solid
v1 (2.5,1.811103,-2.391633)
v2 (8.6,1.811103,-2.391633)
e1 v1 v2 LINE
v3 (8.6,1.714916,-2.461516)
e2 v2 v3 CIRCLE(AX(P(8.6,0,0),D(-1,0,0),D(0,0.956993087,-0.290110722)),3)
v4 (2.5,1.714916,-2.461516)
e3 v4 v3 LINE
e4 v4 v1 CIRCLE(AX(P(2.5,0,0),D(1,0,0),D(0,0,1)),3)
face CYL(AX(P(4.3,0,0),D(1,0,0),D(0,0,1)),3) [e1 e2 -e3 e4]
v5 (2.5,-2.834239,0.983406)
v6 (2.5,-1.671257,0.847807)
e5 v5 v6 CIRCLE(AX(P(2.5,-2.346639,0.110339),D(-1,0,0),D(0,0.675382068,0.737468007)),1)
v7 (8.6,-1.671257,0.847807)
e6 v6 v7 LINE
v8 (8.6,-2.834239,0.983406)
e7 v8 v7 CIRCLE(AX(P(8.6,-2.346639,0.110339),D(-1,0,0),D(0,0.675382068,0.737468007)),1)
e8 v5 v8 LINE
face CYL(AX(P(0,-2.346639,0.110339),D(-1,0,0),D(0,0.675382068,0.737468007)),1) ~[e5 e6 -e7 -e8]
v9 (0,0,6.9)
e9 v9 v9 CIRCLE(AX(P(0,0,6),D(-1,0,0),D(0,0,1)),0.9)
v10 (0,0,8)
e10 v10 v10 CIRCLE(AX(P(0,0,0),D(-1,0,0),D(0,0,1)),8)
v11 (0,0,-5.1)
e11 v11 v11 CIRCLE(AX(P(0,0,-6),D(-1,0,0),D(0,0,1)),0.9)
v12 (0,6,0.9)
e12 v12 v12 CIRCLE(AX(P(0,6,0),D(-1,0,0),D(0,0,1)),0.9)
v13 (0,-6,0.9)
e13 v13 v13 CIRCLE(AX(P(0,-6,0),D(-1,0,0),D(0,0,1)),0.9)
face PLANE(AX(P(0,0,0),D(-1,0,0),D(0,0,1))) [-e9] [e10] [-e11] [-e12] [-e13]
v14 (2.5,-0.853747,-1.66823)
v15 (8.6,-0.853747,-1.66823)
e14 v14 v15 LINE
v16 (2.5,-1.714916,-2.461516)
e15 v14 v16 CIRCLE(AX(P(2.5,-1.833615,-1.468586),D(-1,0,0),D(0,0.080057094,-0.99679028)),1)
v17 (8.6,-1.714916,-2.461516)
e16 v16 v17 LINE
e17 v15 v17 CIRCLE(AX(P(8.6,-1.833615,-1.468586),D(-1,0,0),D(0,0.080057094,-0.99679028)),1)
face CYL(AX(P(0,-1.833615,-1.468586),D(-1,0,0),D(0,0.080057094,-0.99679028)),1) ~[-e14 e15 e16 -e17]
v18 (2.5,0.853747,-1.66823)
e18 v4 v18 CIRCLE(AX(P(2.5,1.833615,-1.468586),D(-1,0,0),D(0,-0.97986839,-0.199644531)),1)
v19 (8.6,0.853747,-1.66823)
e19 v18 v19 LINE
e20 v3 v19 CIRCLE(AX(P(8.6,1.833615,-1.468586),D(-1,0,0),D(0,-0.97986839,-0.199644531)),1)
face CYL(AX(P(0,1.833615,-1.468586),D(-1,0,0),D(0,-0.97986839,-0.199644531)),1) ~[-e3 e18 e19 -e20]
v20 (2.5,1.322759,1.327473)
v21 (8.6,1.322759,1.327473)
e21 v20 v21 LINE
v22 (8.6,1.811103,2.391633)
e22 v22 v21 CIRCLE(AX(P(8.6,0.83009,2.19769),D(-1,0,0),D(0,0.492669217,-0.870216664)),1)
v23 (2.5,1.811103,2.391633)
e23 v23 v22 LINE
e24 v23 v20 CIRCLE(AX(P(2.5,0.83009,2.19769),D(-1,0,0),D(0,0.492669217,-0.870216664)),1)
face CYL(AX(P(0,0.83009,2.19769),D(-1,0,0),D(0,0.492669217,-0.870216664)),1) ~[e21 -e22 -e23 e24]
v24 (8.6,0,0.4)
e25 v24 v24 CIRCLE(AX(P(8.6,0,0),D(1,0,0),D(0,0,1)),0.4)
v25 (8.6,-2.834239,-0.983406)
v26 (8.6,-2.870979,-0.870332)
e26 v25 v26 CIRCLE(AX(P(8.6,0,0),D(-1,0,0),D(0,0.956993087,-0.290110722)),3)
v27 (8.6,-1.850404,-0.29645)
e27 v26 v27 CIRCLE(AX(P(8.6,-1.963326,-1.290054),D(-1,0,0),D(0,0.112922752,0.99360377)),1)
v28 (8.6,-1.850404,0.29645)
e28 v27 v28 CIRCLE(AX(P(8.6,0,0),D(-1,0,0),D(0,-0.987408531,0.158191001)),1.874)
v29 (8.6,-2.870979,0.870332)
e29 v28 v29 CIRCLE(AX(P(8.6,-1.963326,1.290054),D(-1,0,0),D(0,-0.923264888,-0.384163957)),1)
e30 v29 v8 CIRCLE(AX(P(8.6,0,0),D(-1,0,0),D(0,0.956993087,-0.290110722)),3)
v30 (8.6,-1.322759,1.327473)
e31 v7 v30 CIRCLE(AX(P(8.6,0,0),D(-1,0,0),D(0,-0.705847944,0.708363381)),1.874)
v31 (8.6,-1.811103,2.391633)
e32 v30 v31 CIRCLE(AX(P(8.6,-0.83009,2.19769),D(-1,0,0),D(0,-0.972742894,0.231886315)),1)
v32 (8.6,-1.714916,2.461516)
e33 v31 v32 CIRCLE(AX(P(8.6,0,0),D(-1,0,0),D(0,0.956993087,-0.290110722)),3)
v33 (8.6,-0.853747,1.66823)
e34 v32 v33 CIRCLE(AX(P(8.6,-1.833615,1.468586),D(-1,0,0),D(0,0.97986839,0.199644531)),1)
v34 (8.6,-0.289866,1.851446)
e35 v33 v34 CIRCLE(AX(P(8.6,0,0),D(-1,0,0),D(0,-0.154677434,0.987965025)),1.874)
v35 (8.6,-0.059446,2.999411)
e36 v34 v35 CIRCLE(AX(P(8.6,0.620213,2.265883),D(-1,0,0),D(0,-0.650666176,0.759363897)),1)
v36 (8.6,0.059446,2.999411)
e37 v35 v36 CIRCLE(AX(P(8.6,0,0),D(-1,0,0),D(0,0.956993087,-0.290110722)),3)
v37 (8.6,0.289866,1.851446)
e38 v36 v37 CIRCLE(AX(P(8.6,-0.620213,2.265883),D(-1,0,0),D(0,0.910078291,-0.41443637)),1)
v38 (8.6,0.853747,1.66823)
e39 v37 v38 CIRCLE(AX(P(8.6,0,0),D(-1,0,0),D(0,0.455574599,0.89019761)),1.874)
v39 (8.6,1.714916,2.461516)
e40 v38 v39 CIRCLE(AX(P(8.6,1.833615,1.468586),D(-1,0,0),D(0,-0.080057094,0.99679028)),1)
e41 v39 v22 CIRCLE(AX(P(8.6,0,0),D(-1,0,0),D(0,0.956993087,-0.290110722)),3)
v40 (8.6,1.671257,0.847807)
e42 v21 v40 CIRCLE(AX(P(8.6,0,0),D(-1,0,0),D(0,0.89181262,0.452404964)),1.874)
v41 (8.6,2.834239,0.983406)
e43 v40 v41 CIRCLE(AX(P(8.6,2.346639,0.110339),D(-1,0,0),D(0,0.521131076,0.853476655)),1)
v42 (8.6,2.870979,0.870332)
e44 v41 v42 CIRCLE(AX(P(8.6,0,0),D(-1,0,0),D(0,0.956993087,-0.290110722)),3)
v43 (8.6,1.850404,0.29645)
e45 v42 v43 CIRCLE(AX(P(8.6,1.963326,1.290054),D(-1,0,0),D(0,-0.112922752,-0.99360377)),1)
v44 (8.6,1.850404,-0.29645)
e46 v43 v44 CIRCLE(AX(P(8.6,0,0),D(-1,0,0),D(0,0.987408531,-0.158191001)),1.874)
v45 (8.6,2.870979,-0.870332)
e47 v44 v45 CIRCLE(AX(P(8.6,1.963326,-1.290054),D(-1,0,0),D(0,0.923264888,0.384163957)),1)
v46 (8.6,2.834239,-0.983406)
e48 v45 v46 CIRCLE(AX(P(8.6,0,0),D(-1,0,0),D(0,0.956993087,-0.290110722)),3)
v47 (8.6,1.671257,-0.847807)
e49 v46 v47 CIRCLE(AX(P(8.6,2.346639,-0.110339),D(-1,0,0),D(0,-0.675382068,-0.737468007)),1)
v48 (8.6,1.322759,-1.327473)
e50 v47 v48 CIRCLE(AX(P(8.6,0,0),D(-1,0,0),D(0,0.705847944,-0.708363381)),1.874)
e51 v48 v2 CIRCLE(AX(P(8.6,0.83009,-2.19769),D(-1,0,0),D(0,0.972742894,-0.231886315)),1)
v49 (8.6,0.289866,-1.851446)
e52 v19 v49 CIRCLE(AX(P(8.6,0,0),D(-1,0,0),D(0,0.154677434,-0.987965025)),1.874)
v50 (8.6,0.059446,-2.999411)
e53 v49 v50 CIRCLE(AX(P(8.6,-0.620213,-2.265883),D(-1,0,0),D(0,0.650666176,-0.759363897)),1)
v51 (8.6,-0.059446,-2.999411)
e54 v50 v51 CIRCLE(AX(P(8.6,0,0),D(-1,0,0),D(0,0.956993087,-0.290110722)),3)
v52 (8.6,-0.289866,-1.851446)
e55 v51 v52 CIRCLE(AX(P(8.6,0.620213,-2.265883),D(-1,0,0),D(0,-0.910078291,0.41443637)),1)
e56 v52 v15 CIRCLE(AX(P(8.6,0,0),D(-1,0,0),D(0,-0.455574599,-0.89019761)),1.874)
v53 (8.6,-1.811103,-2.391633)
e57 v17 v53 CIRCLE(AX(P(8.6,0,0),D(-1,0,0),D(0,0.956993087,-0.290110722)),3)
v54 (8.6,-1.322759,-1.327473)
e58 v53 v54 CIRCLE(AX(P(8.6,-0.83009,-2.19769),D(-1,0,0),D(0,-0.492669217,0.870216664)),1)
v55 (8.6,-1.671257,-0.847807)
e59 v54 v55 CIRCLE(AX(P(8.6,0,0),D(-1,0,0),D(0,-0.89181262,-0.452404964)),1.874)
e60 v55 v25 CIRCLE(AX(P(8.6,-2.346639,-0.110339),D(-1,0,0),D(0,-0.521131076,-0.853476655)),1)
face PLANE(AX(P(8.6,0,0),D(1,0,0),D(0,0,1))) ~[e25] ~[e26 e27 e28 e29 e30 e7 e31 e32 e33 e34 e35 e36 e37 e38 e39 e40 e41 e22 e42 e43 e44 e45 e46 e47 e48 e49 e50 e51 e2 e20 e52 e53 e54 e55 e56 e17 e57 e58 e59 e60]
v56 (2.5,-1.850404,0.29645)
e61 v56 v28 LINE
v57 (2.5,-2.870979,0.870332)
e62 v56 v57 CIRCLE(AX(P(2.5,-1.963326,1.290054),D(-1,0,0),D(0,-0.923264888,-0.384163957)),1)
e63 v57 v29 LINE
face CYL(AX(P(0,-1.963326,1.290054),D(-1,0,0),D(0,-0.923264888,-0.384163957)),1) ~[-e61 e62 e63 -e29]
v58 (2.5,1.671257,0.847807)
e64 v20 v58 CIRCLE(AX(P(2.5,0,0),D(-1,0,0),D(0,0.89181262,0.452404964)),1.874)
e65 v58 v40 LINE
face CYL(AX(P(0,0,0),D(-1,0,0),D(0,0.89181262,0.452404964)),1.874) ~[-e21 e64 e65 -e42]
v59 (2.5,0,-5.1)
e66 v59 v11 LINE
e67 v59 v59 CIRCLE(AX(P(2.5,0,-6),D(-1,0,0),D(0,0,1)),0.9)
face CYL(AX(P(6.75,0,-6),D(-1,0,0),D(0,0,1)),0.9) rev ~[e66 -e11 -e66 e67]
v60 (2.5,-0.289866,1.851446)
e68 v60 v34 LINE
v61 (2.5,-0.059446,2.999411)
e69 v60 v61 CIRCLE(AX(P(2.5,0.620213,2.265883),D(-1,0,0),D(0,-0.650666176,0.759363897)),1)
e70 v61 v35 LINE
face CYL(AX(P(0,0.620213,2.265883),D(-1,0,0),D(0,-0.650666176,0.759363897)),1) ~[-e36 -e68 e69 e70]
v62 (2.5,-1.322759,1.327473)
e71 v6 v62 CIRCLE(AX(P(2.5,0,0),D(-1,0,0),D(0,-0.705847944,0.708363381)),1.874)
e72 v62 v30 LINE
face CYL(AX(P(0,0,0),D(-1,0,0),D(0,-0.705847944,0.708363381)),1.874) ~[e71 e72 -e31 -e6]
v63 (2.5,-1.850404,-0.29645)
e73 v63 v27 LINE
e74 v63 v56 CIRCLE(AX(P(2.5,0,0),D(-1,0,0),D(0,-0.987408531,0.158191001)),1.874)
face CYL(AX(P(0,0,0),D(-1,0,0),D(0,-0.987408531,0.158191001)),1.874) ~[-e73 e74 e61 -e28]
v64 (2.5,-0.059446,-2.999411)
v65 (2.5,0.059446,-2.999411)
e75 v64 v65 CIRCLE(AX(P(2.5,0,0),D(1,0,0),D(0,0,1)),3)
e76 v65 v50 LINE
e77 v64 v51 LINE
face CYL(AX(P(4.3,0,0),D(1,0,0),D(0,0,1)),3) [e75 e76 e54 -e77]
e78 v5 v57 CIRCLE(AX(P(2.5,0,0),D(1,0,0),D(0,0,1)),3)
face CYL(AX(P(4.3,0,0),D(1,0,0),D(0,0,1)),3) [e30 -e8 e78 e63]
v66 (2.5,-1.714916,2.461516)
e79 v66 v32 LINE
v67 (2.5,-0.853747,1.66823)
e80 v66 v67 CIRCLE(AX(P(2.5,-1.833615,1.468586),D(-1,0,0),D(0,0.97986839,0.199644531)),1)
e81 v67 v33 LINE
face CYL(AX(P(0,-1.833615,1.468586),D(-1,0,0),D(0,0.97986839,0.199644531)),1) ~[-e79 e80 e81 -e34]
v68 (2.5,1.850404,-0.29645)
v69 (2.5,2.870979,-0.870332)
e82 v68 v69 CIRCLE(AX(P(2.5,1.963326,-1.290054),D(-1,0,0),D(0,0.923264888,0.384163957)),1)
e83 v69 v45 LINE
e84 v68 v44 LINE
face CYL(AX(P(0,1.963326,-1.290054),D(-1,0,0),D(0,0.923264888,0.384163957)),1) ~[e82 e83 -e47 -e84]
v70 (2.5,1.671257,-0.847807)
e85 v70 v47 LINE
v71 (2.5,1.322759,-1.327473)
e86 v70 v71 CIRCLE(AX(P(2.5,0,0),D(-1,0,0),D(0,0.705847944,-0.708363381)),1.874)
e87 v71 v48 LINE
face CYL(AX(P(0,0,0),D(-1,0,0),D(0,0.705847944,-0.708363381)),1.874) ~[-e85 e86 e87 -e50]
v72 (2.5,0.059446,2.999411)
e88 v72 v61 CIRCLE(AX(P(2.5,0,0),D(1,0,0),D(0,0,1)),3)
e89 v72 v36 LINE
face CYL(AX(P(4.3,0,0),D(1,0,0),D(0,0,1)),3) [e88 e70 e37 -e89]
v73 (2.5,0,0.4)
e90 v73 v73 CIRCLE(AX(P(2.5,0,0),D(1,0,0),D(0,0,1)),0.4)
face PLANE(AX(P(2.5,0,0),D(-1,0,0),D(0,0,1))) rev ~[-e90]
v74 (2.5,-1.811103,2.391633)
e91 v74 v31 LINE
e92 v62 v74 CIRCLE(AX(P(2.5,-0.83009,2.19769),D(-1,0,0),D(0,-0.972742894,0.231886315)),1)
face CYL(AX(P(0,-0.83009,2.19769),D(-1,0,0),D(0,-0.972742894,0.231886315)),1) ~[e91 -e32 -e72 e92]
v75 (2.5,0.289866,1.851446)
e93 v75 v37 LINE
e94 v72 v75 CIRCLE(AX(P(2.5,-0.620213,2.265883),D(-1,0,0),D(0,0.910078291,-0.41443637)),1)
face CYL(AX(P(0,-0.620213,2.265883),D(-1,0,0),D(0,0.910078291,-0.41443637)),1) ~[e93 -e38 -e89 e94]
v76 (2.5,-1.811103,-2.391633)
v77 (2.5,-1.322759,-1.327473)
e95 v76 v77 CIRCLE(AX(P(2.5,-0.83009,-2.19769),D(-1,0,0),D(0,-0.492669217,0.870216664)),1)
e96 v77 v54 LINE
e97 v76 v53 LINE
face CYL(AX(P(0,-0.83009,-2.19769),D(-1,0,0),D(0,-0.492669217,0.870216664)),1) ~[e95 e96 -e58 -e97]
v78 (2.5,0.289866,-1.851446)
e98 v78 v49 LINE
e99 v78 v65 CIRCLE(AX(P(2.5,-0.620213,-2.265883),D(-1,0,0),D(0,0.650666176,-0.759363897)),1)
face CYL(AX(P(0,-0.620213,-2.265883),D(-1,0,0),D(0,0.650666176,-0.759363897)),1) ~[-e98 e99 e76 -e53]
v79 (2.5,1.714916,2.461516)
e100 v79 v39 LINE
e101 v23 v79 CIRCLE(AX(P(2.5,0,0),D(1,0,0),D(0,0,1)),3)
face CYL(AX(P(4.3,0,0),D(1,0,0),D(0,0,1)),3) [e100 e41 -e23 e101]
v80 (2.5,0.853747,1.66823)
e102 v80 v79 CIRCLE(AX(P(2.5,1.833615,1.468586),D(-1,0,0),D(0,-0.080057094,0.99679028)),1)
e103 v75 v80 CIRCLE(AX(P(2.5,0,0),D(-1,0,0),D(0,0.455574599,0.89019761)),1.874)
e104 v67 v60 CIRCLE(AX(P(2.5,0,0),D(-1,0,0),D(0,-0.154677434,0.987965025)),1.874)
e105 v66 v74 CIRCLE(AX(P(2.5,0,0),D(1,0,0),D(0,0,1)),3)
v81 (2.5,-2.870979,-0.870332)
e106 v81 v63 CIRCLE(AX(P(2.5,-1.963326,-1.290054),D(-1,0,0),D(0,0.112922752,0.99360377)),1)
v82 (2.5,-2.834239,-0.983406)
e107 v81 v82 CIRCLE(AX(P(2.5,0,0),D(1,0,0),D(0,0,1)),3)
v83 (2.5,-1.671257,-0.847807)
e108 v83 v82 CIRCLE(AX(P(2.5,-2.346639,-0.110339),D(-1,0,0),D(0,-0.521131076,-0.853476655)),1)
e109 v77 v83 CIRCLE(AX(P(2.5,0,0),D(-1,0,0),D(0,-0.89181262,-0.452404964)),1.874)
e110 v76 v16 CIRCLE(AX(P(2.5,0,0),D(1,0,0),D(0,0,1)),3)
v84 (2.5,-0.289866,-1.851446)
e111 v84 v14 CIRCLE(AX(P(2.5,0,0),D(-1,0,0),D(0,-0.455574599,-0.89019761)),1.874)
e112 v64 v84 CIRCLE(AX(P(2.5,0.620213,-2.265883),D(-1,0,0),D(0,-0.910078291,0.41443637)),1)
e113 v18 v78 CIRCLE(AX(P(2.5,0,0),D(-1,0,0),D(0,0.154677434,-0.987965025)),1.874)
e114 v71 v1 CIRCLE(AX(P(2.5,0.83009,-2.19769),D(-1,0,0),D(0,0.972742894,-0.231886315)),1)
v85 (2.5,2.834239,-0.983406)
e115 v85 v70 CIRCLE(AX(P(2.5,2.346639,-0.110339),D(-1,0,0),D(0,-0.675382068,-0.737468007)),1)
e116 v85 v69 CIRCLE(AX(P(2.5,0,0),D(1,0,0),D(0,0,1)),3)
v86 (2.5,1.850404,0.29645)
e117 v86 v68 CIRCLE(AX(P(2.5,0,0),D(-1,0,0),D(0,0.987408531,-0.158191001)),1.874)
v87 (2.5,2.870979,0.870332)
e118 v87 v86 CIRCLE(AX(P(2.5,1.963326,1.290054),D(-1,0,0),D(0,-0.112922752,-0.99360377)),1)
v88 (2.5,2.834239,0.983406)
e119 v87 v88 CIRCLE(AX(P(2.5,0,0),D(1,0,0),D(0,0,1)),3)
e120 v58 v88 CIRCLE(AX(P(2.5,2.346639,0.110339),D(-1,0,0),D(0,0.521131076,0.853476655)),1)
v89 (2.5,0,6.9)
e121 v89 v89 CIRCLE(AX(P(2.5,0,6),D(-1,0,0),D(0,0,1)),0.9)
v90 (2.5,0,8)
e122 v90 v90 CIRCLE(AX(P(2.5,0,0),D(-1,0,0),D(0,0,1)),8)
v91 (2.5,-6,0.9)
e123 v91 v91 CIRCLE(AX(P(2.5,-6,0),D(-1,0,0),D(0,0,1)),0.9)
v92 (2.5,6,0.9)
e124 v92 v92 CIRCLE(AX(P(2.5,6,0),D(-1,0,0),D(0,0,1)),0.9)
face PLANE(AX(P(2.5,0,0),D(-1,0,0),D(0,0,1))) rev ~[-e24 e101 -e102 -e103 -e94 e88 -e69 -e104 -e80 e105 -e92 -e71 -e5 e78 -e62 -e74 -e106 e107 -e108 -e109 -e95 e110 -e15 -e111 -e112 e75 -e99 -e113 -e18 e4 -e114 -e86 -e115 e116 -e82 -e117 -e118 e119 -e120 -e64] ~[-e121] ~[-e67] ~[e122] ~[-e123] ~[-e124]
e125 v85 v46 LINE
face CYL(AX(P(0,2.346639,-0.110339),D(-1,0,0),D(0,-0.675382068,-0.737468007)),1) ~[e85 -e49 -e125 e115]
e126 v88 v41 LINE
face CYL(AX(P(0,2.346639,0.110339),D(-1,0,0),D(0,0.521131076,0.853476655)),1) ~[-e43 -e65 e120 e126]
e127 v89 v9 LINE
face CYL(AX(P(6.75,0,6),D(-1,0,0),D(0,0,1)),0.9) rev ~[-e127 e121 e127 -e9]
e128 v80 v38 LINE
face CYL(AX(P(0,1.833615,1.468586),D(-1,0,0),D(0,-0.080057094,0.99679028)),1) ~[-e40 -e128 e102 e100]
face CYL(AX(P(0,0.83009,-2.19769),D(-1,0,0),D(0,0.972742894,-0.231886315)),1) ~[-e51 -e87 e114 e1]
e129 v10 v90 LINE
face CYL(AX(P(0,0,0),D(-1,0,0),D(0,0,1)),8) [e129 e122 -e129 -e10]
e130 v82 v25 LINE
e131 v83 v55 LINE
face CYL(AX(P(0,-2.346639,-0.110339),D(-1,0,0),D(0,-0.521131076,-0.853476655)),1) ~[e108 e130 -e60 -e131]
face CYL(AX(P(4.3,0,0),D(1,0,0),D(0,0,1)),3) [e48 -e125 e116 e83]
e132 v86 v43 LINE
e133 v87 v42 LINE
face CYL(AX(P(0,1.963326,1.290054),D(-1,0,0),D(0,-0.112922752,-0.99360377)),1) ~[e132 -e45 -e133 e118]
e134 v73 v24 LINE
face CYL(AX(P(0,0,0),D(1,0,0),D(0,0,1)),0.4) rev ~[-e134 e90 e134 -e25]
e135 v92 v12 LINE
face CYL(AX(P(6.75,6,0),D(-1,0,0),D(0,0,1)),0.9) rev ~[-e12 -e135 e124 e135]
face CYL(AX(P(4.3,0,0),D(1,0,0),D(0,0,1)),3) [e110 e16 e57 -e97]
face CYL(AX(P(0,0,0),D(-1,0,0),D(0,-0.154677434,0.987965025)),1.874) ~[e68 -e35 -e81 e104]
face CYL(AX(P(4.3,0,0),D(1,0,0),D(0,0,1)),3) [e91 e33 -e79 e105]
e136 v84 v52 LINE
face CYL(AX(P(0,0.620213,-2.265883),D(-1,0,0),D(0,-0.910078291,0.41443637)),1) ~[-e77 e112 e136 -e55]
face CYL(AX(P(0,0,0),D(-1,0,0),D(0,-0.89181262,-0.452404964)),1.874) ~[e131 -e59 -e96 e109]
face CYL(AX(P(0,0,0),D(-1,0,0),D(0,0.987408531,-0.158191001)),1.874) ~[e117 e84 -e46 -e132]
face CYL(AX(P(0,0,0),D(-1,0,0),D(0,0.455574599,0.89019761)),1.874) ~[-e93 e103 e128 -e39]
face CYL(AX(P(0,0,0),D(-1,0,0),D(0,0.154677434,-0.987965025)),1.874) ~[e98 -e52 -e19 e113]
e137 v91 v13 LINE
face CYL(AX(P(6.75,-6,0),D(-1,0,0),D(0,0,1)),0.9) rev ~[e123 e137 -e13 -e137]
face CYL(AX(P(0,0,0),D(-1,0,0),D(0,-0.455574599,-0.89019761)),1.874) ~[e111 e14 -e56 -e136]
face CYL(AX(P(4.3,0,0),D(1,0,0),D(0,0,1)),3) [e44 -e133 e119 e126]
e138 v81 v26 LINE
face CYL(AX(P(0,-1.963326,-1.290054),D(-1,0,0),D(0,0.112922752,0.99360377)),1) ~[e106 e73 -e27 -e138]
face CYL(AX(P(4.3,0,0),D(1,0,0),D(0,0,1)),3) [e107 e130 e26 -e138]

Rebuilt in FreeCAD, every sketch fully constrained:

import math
import FreeCAD as App
import Part
import Sketcher
Q = App.Units.Quantity

doc = App.newDocument("Part")
body = doc.addObject("PartDesign::Body", "Body")

# Sketch on XZ plane
sketch1 = body.newObject("Sketcher::SketchObject", "Sketch")
sketch1.AttachmentSupport = (doc.getObject("XZ_Plane"), [""])
sketch1.MapMode = "FlatFace"
sketch1.addGeometry(Part.LineSegment(App.Vector(0, -3, 0), App.Vector(0, 0, 0)), False)
sketch1.addGeometry(Part.LineSegment(App.Vector(0, 0, 0), App.Vector(8.6, 0, 0)), False)
sketch1.addGeometry(Part.LineSegment(App.Vector(8.6, 0, 0), App.Vector(8.6, -3, 0)), False)
sketch1.addGeometry(Part.LineSegment(App.Vector(8.6, -3, 0), App.Vector(0, -3, 0)), False)
sketch1.addConstraint(Sketcher.Constraint("Coincident", 0, 2, 1, 1))
sketch1.addConstraint(Sketcher.Constraint("Coincident", 1, 2, 2, 1))
sketch1.addConstraint(Sketcher.Constraint("Coincident", 2, 2, 3, 1))
sketch1.addConstraint(Sketcher.Constraint("Coincident", 3, 2, 0, 1))
sketch1.addConstraint(Sketcher.Constraint("Vertical", 0))
sketch1.addConstraint(Sketcher.Constraint("Horizontal", 1))
sketch1.addConstraint(Sketcher.Constraint("Vertical", 2))
sketch1.addConstraint(Sketcher.Constraint("Horizontal", 3))
sketch1.addConstraint(Sketcher.Constraint("Coincident", 0, 2, -1, 1))
sketch1.addConstraint(Sketcher.Constraint("DistanceY", 0, 1, 0, 2, Q("3 mm")))
sketch1.addConstraint(Sketcher.Constraint("DistanceX", 1, 1, 1, 2, Q("8.6 mm")))
revolution = body.newObject("PartDesign::Revolution", "Revolution")
revolution.Profile = sketch1
revolution.ReferenceAxis = (sketch1, ["H_Axis"])
revolution.Angle = 360

# Sketch on YZ plane
sketch2 = body.newObject("Sketcher::SketchObject", "Sketch001")
sketch2.AttachmentSupport = (doc.getObject("YZ_Plane"), [""])
sketch2.MapMode = "FlatFace"
sketch2.addGeometry(Part.ArcOfCircle(Part.Circle(App.Vector(0, 0, 0), App.Vector(0, 0, 1), 1.874), math.radians(-9.101911), math.radians(9.101911)), False)
sketch2.addGeometry(Part.ArcOfCircle(Part.Circle(App.Vector(1.963326, -1.290054, 0), App.Vector(0, 0, 1), 1), math.radians(22.591848), math.radians(96.483827)), False)
sketch2.addGeometry(Part.ArcOfCircle(Part.Circle(App.Vector(0, 0, 0), App.Vector(0, 0, 1), 3.0254), math.radians(-17.423256), math.radians(17.423256)), False)
sketch2.addGeometry(Part.ArcOfCircle(Part.Circle(App.Vector(1.963326, 1.290054, 0), App.Vector(0, 0, 1), 1), math.radians(-96.483827), math.radians(-22.591848)), False)
sketch2.addConstraint(Sketcher.Constraint("Coincident", 0, 1, 1, 2))
sketch2.addConstraint(Sketcher.Constraint("Coincident", 1, 1, 2, 1))
sketch2.addConstraint(Sketcher.Constraint("Coincident", 2, 2, 3, 2))
sketch2.addConstraint(Sketcher.Constraint("Coincident", 3, 1, 0, 2))
sketch2.addConstraint(Sketcher.Constraint("Coincident", 0, 3, -1, 1))
sketch2.addConstraint(Sketcher.Constraint("Coincident", 2, 3, -1, 1))
sketch2.addConstraint(Sketcher.Constraint("Equal", 1, 3))
sketch2.addConstraint(Sketcher.Constraint("Symmetric", 1, 3, 3, 3, -1))
sketch2.addConstraint(Sketcher.Constraint("Radius", 1, Q("1 mm")))
sketch2.addConstraint(Sketcher.Constraint("Radius", 0, Q("1.874 mm")))
sketch2.addConstraint(Sketcher.Constraint("Radius", 2, Q("3.0254 mm")))
sketch2.addConstraint(Sketcher.Constraint("DistanceY", 0, 1, 3, 1, Q("0.5929 mm")))
sketch2.addConstraint(Sketcher.Constraint("DistanceX", -1, 1, 1, 1, Q("2.886591 mm")))
pocket1 = body.newObject("PartDesign::Pocket", "Pocket")
pocket1.Profile = sketch2
pocket1.Type = "ThroughAll"
pocket1.Reversed = True
doc.recompute()

polarpattern = body.newObject("PartDesign::PolarPattern", "PolarPattern")
polarpattern.Originals = [pocket1]
polarpattern.Axis = (doc.getObject("X_Axis"), [""])
polarpattern.Angle = 360
polarpattern.Occurrences = 10
body.Tip = polarpattern

# Sketch on YZ plane
sketch3 = body.newObject("Sketcher::SketchObject", "Sketch002")
sketch3.AttachmentSupport = (doc.getObject("YZ_Plane"), [""])
sketch3.MapMode = "FlatFace"
sketch3.addGeometry(Part.Circle(App.Vector(0, 0, 0), App.Vector(0, 0, 1), 0.4), False)
sketch3.addConstraint(Sketcher.Constraint("Coincident", 0, 3, -1, 1))
sketch3.addConstraint(Sketcher.Constraint("Diameter", 0, Q("0.8 mm")))
pocket2 = body.newObject("PartDesign::Pocket", "Pocket001")
pocket2.Profile = sketch3
pocket2.Length = 100.000102
pocket2.Midplane = True

# Sketch on YZ plane
sketch4 = body.newObject("Sketcher::SketchObject", "Sketch003")
sketch4.AttachmentSupport = (doc.getObject("YZ_Plane"), [""])
sketch4.MapMode = "FlatFace"
sketch4.addGeometry(Part.Circle(App.Vector(0, 0, 0), App.Vector(0, 0, 1), 8), False)
sketch4.addConstraint(Sketcher.Constraint("Coincident", 0, 3, -1, 1))
sketch4.addConstraint(Sketcher.Constraint("Diameter", 0, Q("16 mm")))
pad1 = body.newObject("PartDesign::Pad", "Pad")
pad1.Profile = sketch4
pad1.Length = 2.5

# Sketch on YZ plane
sketch5 = body.newObject("Sketcher::SketchObject", "Sketch004")
sketch5.AttachmentSupport = (doc.getObject("YZ_Plane"), [""])
sketch5.MapMode = "FlatFace"
sketch5.AttachmentOffset = App.Placement(App.Vector(0, 0, 2.5), App.Rotation())
sketch5.addGeometry(Part.Circle(App.Vector(6, 0, 0), App.Vector(0, 0, 1), 0.9), False)
sketch5.addGeometry(Part.Circle(App.Vector(0, -6, 0), App.Vector(0, 0, 1), 0.9), False)
sketch5.addGeometry(Part.Circle(App.Vector(-6, 0, 0), App.Vector(0, 0, 1), 0.9), False)
sketch5.addGeometry(Part.Circle(App.Vector(0, 6, 0), App.Vector(0, 0, 1), 0.9), False)
sketch5.addConstraint(Sketcher.Constraint("Equal", 0, 1))
sketch5.addConstraint(Sketcher.Constraint("Equal", 1, 2))
sketch5.addConstraint(Sketcher.Constraint("Equal", 2, 3))
sketch5.addConstraint(Sketcher.Constraint("Symmetric", 0, 3, 2, 3, -1, 1))
sketch5.addConstraint(Sketcher.Constraint("Symmetric", 1, 3, 3, 3, -1, 1))
sketch5.addConstraint(Sketcher.Constraint("PointOnObject", 0, 3, -1))
sketch5.addConstraint(Sketcher.Constraint("PointOnObject", 1, 3, -2))
sketch5.addConstraint(Sketcher.Constraint("Diameter", 0, Q("1.8 mm")))
sketch5.addConstraint(Sketcher.Constraint("DistanceX", -1, 1, 0, 3, Q("6 mm")))
sketch5.addConstraint(Sketcher.Constraint("DistanceY", 1, 3, -1, 1, Q("6 mm")))
doc.recompute()
hole = body.newObject("PartDesign::Hole", "Hole")
hole.Profile = sketch5
hole.ThreadType = "None"
hole.Diameter = 1.8
hole.DepthType = "Dimension"
hole.Depth = 4.25
hole.DrillPoint = "Angled"
hole.DrillPointAngle = 118

doc.recompute()
